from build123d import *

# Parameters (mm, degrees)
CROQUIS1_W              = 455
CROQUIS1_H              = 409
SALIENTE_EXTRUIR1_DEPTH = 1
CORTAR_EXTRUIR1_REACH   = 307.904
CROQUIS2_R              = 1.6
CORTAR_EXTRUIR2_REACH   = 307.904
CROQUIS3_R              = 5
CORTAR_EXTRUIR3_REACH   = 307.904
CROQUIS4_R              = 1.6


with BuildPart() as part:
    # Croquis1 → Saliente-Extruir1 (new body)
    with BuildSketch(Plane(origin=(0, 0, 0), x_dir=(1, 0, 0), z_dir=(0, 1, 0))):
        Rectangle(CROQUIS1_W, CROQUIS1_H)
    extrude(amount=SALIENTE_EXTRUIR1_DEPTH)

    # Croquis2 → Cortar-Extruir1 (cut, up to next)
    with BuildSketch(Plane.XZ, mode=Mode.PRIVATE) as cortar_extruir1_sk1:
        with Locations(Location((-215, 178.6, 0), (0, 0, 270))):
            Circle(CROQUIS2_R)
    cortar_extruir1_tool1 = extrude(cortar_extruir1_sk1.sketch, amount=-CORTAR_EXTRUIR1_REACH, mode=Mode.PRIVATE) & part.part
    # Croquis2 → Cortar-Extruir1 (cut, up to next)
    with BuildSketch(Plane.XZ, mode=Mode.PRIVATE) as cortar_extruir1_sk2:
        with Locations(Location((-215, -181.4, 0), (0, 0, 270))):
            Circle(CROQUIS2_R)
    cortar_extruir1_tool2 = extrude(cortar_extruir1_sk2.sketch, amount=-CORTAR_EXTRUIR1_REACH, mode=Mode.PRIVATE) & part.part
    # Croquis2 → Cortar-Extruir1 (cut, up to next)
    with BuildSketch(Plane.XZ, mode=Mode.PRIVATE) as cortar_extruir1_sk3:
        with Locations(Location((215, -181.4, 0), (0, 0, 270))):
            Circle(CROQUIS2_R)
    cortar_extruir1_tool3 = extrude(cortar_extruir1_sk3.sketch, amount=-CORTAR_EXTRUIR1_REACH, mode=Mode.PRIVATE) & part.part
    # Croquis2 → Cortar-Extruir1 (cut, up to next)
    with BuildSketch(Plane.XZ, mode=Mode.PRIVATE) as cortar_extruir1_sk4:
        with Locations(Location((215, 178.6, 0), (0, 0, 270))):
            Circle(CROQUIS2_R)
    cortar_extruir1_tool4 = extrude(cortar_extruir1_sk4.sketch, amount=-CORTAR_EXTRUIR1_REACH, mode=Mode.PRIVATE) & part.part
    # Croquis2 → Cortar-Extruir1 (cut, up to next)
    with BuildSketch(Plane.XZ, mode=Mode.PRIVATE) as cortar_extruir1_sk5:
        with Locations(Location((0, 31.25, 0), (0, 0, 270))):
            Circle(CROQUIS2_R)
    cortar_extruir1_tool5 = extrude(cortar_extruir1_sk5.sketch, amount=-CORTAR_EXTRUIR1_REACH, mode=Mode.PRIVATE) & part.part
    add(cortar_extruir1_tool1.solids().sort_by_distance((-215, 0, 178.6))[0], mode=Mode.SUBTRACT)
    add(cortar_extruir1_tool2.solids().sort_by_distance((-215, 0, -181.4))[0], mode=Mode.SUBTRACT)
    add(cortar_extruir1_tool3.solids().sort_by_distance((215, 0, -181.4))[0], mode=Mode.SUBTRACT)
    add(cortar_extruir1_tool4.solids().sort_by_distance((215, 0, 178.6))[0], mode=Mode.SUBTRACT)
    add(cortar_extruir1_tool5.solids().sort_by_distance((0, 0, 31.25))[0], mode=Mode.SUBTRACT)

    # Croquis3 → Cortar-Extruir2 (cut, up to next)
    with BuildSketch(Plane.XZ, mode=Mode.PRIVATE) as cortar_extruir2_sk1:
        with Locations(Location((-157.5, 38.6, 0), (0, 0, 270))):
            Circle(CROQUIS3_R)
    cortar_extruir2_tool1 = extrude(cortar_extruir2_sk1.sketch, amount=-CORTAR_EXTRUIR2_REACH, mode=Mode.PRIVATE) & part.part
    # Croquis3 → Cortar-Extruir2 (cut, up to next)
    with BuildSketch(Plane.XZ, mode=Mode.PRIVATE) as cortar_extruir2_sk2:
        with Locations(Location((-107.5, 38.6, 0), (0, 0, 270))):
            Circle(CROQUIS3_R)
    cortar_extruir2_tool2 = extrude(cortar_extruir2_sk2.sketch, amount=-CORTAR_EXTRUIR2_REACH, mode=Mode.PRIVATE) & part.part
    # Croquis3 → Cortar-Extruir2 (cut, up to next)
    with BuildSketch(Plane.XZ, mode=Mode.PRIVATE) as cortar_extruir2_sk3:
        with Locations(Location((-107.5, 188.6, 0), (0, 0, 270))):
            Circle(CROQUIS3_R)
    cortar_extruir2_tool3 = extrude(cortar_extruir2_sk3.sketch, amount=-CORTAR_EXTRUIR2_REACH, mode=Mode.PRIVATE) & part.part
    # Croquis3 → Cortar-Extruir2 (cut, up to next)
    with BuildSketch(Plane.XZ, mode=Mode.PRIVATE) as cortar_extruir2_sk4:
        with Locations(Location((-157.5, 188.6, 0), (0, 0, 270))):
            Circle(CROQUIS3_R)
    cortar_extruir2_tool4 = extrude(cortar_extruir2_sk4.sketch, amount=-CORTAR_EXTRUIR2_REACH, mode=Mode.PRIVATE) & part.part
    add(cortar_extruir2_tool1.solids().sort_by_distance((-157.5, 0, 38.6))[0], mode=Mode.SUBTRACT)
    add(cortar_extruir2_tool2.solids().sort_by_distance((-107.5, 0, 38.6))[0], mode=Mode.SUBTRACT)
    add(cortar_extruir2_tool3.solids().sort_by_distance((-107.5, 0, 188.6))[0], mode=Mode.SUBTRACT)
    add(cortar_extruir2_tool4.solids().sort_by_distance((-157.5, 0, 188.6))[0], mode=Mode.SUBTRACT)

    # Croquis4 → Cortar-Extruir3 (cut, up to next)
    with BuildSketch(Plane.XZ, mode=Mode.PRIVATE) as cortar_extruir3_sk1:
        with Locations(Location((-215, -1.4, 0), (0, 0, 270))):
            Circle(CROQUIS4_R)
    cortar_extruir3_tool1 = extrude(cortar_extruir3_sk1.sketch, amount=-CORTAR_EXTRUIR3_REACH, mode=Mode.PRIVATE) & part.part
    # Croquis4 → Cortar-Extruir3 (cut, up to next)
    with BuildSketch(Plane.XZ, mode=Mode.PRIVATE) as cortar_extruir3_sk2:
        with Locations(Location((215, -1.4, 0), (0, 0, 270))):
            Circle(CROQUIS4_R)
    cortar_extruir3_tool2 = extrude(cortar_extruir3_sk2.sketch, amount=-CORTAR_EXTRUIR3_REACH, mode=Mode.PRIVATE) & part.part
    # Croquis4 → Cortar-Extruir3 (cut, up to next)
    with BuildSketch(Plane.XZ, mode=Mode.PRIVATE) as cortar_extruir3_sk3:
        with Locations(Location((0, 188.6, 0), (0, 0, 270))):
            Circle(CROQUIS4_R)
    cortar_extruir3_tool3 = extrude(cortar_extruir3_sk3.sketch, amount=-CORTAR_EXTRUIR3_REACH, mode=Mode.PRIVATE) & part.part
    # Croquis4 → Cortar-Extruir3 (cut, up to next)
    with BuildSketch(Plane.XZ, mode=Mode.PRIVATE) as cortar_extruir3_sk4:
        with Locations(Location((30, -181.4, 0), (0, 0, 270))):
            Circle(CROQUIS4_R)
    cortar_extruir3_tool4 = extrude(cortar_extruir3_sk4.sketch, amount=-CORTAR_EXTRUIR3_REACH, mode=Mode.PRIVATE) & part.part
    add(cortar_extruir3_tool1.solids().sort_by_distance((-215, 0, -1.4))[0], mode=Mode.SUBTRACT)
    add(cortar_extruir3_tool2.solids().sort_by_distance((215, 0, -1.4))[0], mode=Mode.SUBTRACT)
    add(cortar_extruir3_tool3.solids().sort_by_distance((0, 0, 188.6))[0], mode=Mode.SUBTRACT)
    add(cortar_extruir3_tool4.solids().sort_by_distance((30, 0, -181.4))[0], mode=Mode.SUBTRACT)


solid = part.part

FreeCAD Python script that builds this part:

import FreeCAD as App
import Part
import Sketcher

V = App.Vector
Q = App.Units.Quantity


def add_polygon(sketch, points):
    """Adds a closed chain of lines whose ends are joined by coincident constraints."""
    first, n = sketch.GeometryCount, len(points)
    for a, b in zip(points, points[1:] + points[:1]):
        sketch.addGeometry(Part.LineSegment(App.Vector(*a, 0), App.Vector(*b, 0)), False)
    for i in range(n):
        sketch.addConstraint(Sketcher.Constraint("Coincident", first + i, 2, first + (i + 1) % n, 1))

doc = App.newDocument("Part")
params = doc.addObject("Spreadsheet::Sheet", "Params")
for row, (alias, value) in enumerate([
    ("sketch1_width", "455 mm"),
    ("sketch1_height", "409 mm"),
    ("pad1_length", "1 mm"),
    ("sketch2_diameter", "3.2 mm"),
    ("sketch3_diameter", "3.2 mm"),
    ("sketch4_diameter", "3.2 mm"),
    ("sketch5_diameter", "3.2 mm"),
    ("sketch6_diameter", "3.2 mm"),
    ("sketch7_diameter", "10 mm"),
    ("sketch8_diameter", "10 mm"),
    ("sketch9_diameter", "10 mm"),
    ("sketch10_diameter", "10 mm"),
    ("sketch11_diameter", "3.2 mm"),
    ("sketch12_diameter", "3.2 mm"),
    ("sketch13_diameter", "3.2 mm"),
    ("sketch14_diameter", "3.2 mm"),
], start=1):
    params.set(f"A{row}", alias)
    params.set(f"B{row}", "=" + value)
    params.setAlias(f"B{row}", alias)

body = doc.addObject("PartDesign::Body", "Body")

# Sketch on XZ plane
sketch1 = doc.addObject("Sketcher::SketchObject", "Sketch")
body.addObject(sketch1)
sketch1.AttachmentSupport = (doc.XZ_Plane, [""])
sketch1.MapMode = "FlatFace"
add_polygon(sketch1, [(-228, -204), (-228, 204), (228, 204), (228, -204)])  # lines 0-3
sketch1.addConstraint([
    Sketcher.Constraint("Vertical", 0),
    Sketcher.Constraint("Horizontal", 1),
    Sketcher.Constraint("Vertical", 2),
    Sketcher.Constraint("Horizontal", 3),
    Sketcher.Constraint("Symmetric", 0, 2, 2, 2, -1, 1),
    Sketcher.Constraint("DistanceX", 1, 1, 1, 2, Q("455 mm")),
    Sketcher.Constraint("DistanceY", 0, 1, 0, 2, Q("409 mm")),
])
sketch1.setExpression("Constraints[9]", "Params.sketch1_width")
sketch1.setExpression("Constraints[10]", "Params.sketch1_height")
pad1 = doc.addObject("PartDesign::Pad", "Pad")
body.addObject(pad1)
pad1.Profile = sketch1
pad1.setExpression("Length", "Params.pad1_length")
pad1.Reversed = True

# Sketch on XZ plane
sketch2 = doc.addObject("Sketcher::SketchObject", "Sketch001")
body.addObject(sketch2)
sketch2.AttachmentSupport = (doc.XZ_Plane, [""])
sketch2.MapMode = "FlatFace"
sketch2.addGeometry(Part.Circle(V(-215, 178.6, 0), V(0, 0, 1), 1.6), False)
sketch2.addConstraint([
    Sketcher.Constraint("Diameter", 0, Q("3.2 mm")),
    Sketcher.Constraint("DistanceX", 0, 3, -1, 1, Q("215 mm")),
    Sketcher.Constraint("DistanceY", -1, 1, 0, 3, Q("178.6 mm")),
])
sketch2.setExpression("Constraints[0]", "Params.sketch2_diameter")
pocket1 = doc.addObject("PartDesign::Pocket", "Pocket")
body.addObject(pocket1)
pocket1.Profile = sketch2
pocket1.Type = "UpToFirst"

# Sketch on XZ plane
sketch3 = doc.addObject("Sketcher::SketchObject", "Sketch002")
body.addObject(sketch3)
sketch3.AttachmentSupport = (doc.XZ_Plane, [""])
sketch3.MapMode = "FlatFace"
sketch3.addGeometry(Part.Circle(V(-215, -181.4, 0), V(0, 0, 1), 1.6), False)
sketch3.addConstraint([
    Sketcher.Constraint("Diameter", 0, Q("3.2 mm")),
    Sketcher.Constraint("DistanceX", 0, 3, -1, 1, Q("215 mm")),
    Sketcher.Constraint("DistanceY", 0, 3, -1, 1, Q("181.4 mm")),
])
sketch3.setExpression("Constraints[0]", "Params.sketch3_diameter")
pocket2 = doc.addObject("PartDesign::Pocket", "Pocket001")
body.addObject(pocket2)
pocket2.Profile = sketch3
pocket2.Type = "UpToFirst"

# Sketch on XZ plane
sketch4 = doc.addObject("Sketcher::SketchObject", "Sketch003")
body.addObject(sketch4)
sketch4.AttachmentSupport = (doc.XZ_Plane, [""])
sketch4.MapMode = "FlatFace"
sketch4.addGeometry(Part.Circle(V(215, -181.4, 0), V(0, 0, 1), 1.6), False)
sketch4.addConstraint([
    Sketcher.Constraint("Diameter", 0, Q("3.2 mm")),
    Sketcher.Constraint("DistanceX", -1, 1, 0, 3, Q("215 mm")),
    Sketcher.Constraint("DistanceY", 0, 3, -1, 1, Q("181.4 mm")),
])
sketch4.setExpression("Constraints[0]", "Params.sketch4_diameter")
pocket3 = doc.addObject("PartDesign::Pocket", "Pocket002")
body.addObject(pocket3)
pocket3.Profile = sketch4
pocket3.Type = "UpToFirst"

# Sketch on XZ plane
sketch5 = doc.addObject("Sketcher::SketchObject", "Sketch004")
body.addObject(sketch5)
sketch5.AttachmentSupport = (doc.XZ_Plane, [""])
sketch5.MapMode = "FlatFace"
sketch5.addGeometry(Part.Circle(V(215, 178.6, 0), V(0, 0, 1), 1.6), False)
sketch5.addConstraint([
    Sketcher.Constraint("Diameter", 0, Q("3.2 mm")),
    Sketcher.Constraint("DistanceX", -1, 1, 0, 3, Q("215 mm")),
    Sketcher.Constraint("DistanceY", -1, 1, 0, 3, Q("178.6 mm")),
])
sketch5.setExpression("Constraints[0]", "Params.sketch5_diameter")
pocket4 = doc.addObject("PartDesign::Pocket", "Pocket003")
body.addObject(pocket4)
pocket4.Profile = sketch5
pocket4.Type = "UpToFirst"

# Sketch on XZ plane
sketch6 = doc.addObject("Sketcher::SketchObject", "Sketch005")
body.addObject(sketch6)
sketch6.AttachmentSupport = (doc.XZ_Plane, [""])
sketch6.MapMode = "FlatFace"
sketch6.addGeometry(Part.Circle(V(0, 31.2, 0), V(0, 0, 1), 1.6), False)
sketch6.addConstraint([
    Sketcher.Constraint("PointOnObject", 0, 3, -2),
    Sketcher.Constraint("Diameter", 0, Q("3.2 mm")),
    Sketcher.Constraint("DistanceY", -1, 1, 0, 3, Q("31.25 mm")),
])
sketch6.setExpression("Constraints[1]", "Params.sketch6_diameter")
pocket5 = doc.addObject("PartDesign::Pocket", "Pocket004")
body.addObject(pocket5)
pocket5.Profile = sketch6
pocket5.Type = "UpToFirst"

# Sketch on XZ plane
sketch7 = doc.addObject("Sketcher::SketchObject", "Sketch006")
body.addObject(sketch7)
sketch7.AttachmentSupport = (doc.XZ_Plane, [""])
sketch7.MapMode = "FlatFace"
sketch7.addGeometry(Part.Circle(V(-158, 39, 0), V(0, 0, 1), 5), False)
sketch7.addConstraint([
    Sketcher.Constraint("Diameter", 0, Q("10 mm")),
    Sketcher.Constraint("DistanceX", 0, 3, -1, 1, Q("157.5 mm")),
    Sketcher.Constraint("DistanceY", -1, 1, 0, 3, Q("38.6 mm")),
])
sketch7.setExpression("Constraints[0]", "Params.sketch7_diameter")
pocket6 = doc.addObject("PartDesign::Pocket", "Pocket005")
body.addObject(pocket6)
pocket6.Profile = sketch7
pocket6.Type = "UpToFirst"

# Sketch on XZ plane
sketch8 = doc.addObject("Sketcher::SketchObject", "Sketch007")
body.addObject(sketch8)
sketch8.AttachmentSupport = (doc.XZ_Plane, [""])
sketch8.MapMode = "FlatFace"
sketch8.addGeometry(Part.Circle(V(-108, 39, 0), V(0, 0, 1), 5), False)
sketch8.addConstraint([
    Sketcher.Constraint("Diameter", 0, Q("10 mm")),
    Sketcher.Constraint("DistanceX", 0, 3, -1, 1, Q("107.5 mm")),
    Sketcher.Constraint("DistanceY", -1, 1, 0, 3, Q("38.6 mm")),
])
sketch8.setExpression("Constraints[0]", "Params.sketch8_diameter")
pocket7 = doc.addObject("PartDesign::Pocket", "Pocket006")
body.addObject(pocket7)
pocket7.Profile = sketch8
pocket7.Type = "UpToFirst"

# Sketch on XZ plane
sketch9 = doc.addObject("Sketcher::SketchObject", "Sketch008")
body.addObject(sketch9)
sketch9.AttachmentSupport = (doc.XZ_Plane, [""])
sketch9.MapMode = "FlatFace"
sketch9.addGeometry(Part.Circle(V(-108, 189, 0), V(0, 0, 1), 5), False)
sketch9.addConstraint([
    Sketcher.Constraint("Diameter", 0, Q("10 mm")),
    Sketcher.Constraint("DistanceX", 0, 3, -1, 1, Q("107.5 mm")),
    Sketcher.Constraint("DistanceY", -1, 1, 0, 3, Q("188.6 mm")),
])
sketch9.setExpression("Constraints[0]", "Params.sketch9_diameter")
pocket8 = doc.addObject("PartDesign::Pocket", "Pocket007")
body.addObject(pocket8)
pocket8.Profile = sketch9
pocket8.Type = "UpToFirst"

# Sketch on XZ plane
sketch10 = doc.addObject("Sketcher::SketchObject", "Sketch009")
body.addObject(sketch10)
sketch10.AttachmentSupport = (doc.XZ_Plane, [""])
sketch10.MapMode = "FlatFace"
sketch10.addGeometry(Part.Circle(V(-158, 189, 0), V(0, 0, 1), 5), False)
sketch10.addConstraint([
    Sketcher.Constraint("Diameter", 0, Q("10 mm")),
    Sketcher.Constraint("DistanceX", 0, 3, -1, 1, Q("157.5 mm")),
    Sketcher.Constraint("DistanceY", -1, 1, 0, 3, Q("188.6 mm")),
])
sketch10.setExpression("Constraints[0]", "Params.sketch10_diameter")
pocket9 = doc.addObject("PartDesign::Pocket", "Pocket008")
body.addObject(pocket9)
pocket9.Profile = sketch10
pocket9.Type = "UpToFirst"

# Sketch on XZ plane
sketch11 = doc.addObject("Sketcher::SketchObject", "Sketch010")
body.addObject(sketch11)
sketch11.AttachmentSupport = (doc.XZ_Plane, [""])
sketch11.MapMode = "FlatFace"
sketch11.addGeometry(Part.Circle(V(-215, -1.4, 0), V(0, 0, 1), 1.6), False)
sketch11.addConstraint([
    Sketcher.Constraint("Diameter", 0, Q("3.2 mm")),
    Sketcher.Constraint("DistanceX", 0, 3, -1, 1, Q("215 mm")),
    Sketcher.Constraint("DistanceY", 0, 3, -1, 1, Q("1.4 mm")),
])
sketch11.setExpression("Constraints[0]", "Params.sketch11_diameter")
pocket10 = doc.addObject("PartDesign::Pocket", "Pocket009")
body.addObject(pocket10)
pocket10.Profile = sketch11
pocket10.Type = "UpToFirst"

# Sketch on XZ plane
sketch12 = doc.addObject("Sketcher::SketchObject", "Sketch011")
body.addObject(sketch12)
sketch12.AttachmentSupport = (doc.XZ_Plane, [""])
sketch12.MapMode = "FlatFace"
sketch12.addGeometry(Part.Circle(V(215, -1.4, 0), V(0, 0, 1), 1.6), False)
sketch12.addConstraint([
    Sketcher.Constraint("Diameter", 0, Q("3.2 mm")),
    Sketcher.Constraint("DistanceX", -1, 1, 0, 3, Q("215 mm")),
    Sketcher.Constraint("DistanceY", 0, 3, -1, 1, Q("1.4 mm")),
])
sketch12.setExpression("Constraints[0]", "Params.sketch12_diameter")
pocket11 = doc.addObject("PartDesign::Pocket", "Pocket010")
body.addObject(pocket11)
pocket11.Profile = sketch12
pocket11.Type = "UpToFirst"

# Sketch on XZ plane
sketch13 = doc.addObject("Sketcher::SketchObject", "Sketch012")
body.addObject(sketch13)
sketch13.AttachmentSupport = (doc.XZ_Plane, [""])
sketch13.MapMode = "FlatFace"
sketch13.addGeometry(Part.Circle(V(0, 188.6, 0), V(0, 0, 1), 1.6), False)
sketch13.addConstraint([
    Sketcher.Constraint("PointOnObject", 0, 3, -2),
    Sketcher.Constraint("Diameter", 0, Q("3.2 mm")),
    Sketcher.Constraint("DistanceY", -1, 1, 0, 3, Q("188.6 mm")),
])
sketch13.setExpression("Constraints[1]", "Params.sketch13_diameter")
pocket12 = doc.addObject("PartDesign::Pocket", "Pocket011")
body.addObject(pocket12)
pocket12.Profile = sketch13
pocket12.Type = "UpToFirst"

# Sketch on XZ plane
sketch14 = doc.addObject("Sketcher::SketchObject", "Sketch013")
body.addObject(sketch14)
sketch14.AttachmentSupport = (doc.XZ_Plane, [""])
sketch14.MapMode = "FlatFace"
sketch14.addGeometry(Part.Circle(V(30, -181.4, 0), V(0, 0, 1), 1.6), False)
sketch14.addConstraint([
    Sketcher.Constraint("Diameter", 0, Q("3.2 mm")),
    Sketcher.Constraint("DistanceX", -1, 1, 0, 3, Q("30 mm")),
    Sketcher.Constraint("DistanceY", 0, 3, -1, 1, Q("181.4 mm")),
])
sketch14.setExpression("Constraints[0]", "Params.sketch14_diameter")
pocket13 = doc.addObject("PartDesign::Pocket", "Pocket012")
body.addObject(pocket13)
pocket13.Profile = sketch14
pocket13.Type = "UpToFirst"

doc.recompute()
